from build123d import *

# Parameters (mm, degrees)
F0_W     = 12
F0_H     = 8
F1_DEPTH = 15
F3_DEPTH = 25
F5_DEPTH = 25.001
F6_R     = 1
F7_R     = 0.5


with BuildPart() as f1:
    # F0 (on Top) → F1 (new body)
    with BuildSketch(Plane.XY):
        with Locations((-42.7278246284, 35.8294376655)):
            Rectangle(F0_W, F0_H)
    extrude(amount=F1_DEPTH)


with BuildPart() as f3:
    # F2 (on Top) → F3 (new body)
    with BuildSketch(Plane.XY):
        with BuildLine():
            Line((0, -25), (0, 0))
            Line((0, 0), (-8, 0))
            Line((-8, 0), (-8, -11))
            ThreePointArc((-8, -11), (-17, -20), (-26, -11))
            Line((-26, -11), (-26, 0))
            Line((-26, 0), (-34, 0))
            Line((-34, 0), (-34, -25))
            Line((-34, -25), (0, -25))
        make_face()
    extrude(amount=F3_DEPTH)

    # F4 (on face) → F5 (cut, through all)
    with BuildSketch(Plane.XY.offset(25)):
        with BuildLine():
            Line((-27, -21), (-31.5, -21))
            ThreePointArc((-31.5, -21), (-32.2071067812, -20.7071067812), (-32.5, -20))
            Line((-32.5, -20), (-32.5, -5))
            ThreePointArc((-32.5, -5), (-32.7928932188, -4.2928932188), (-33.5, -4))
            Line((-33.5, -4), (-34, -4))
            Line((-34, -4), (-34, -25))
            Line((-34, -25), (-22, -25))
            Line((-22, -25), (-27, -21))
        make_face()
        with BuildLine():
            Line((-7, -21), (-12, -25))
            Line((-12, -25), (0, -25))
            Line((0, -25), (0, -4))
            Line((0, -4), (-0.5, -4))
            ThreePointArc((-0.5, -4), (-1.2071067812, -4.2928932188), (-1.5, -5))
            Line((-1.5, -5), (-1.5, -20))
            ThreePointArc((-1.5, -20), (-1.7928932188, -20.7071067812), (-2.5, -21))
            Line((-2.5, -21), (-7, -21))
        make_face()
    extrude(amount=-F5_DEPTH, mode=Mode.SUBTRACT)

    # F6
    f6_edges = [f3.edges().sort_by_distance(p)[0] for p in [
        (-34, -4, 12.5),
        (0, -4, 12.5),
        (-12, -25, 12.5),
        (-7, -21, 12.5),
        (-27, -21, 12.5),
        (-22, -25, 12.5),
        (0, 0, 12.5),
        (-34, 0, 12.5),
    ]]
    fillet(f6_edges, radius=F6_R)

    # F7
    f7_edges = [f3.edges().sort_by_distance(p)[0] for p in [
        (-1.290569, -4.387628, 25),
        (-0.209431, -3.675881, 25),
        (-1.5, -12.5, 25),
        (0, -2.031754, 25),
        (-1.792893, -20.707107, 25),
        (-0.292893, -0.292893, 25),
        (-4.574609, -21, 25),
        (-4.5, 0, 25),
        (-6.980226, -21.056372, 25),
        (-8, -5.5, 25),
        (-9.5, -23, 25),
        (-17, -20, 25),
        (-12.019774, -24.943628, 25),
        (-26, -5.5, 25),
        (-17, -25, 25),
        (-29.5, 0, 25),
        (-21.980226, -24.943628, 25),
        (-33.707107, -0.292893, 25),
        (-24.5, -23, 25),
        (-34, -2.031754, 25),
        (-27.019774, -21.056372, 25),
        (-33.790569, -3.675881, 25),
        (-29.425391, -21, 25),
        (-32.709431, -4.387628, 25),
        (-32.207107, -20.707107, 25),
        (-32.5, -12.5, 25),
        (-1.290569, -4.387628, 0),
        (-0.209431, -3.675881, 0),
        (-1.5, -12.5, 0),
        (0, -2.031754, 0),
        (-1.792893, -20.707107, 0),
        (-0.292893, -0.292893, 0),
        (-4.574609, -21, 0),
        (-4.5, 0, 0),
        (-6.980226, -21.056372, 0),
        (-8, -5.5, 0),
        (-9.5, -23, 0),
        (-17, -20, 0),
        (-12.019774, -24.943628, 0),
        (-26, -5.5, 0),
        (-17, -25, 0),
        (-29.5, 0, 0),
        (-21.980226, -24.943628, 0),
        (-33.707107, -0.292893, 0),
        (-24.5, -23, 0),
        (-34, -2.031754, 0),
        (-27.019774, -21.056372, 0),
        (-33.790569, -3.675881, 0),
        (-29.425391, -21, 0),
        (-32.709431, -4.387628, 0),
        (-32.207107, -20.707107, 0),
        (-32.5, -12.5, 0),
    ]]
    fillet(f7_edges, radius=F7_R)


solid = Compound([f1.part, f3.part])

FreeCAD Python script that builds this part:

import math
import FreeCAD as App
import Part
import Sketcher

V = App.Vector
Q = App.Units.Quantity


def edges_at(feature, points):
    """Names of the edges that pass closest to the given points."""
    edges = feature.Shape.Edges
    near = lambda p: min(range(len(edges)), key=lambda i: edges[i].distToShape(Part.Vertex(*p))[0])
    return sorted({f"Edge{near(p) + 1}" for p in points})


def add_polygon(sketch, points):
    """Adds a closed chain of lines whose ends are joined by coincident constraints."""
    first, n = sketch.GeometryCount, len(points)
    for a, b in zip(points, points[1:] + points[:1]):
        sketch.addGeometry(Part.LineSegment(App.Vector(*a, 0), App.Vector(*b, 0)), False)
    for i in range(n):
        sketch.addConstraint(Sketcher.Constraint("Coincident", first + i, 2, first + (i + 1) % n, 1))

doc = App.newDocument("Part")
body = doc.addObject("PartDesign::Body", "Body")

# Sketch on XY plane
sketch1 = doc.addObject("Sketcher::SketchObject", "Sketch")
body.addObject(sketch1)
sketch1.AttachmentSupport = (doc.XY_Plane, [""])
sketch1.MapMode = "FlatFace"
add_polygon(sketch1, [(-49, 40), (-49, 32), (-37, 32), (-37, 40)])  # lines 0-3
sketch1.addConstraint([
    Sketcher.Constraint("Vertical", 0),
    Sketcher.Constraint("Horizontal", 1),
    Sketcher.Constraint("Vertical", 2),
    Sketcher.Constraint("Horizontal", 3),
    Sketcher.Constraint("DistanceX", 1, 1, 1, 2, Q("12 mm")),
    Sketcher.Constraint("DistanceY", 0, 2, 0, 1, Q("8 mm")),
    Sketcher.Constraint("DistanceX", 0, 2, -1, 1, Q("48.727825 mm")),
    Sketcher.Constraint("DistanceY", -1, 1, 0, 2, Q("31.829438 mm")),
])
pad1 = doc.addObject("PartDesign::Pad", "Pad")
body.addObject(pad1)
pad1.Profile = sketch1
pad1.Length = 15
body2 = doc.addObject("PartDesign::Body", "Body001")

# Sketch on XY plane
sketch2 = doc.addObject("Sketcher::SketchObject", "Sketch001")
body2.addObject(sketch2)
sketch2.AttachmentSupport = (doc.getObject("XY_Plane001"), [""])
sketch2.MapMode = "FlatFace"
sketch2.addGeometry([
    Part.LineSegment(V(0, -25, 0), V(0, 0, 0)),  # 0
    Part.LineSegment(V(0, 0, 0), V(-8, 0, 0)),  # 1
    Part.LineSegment(V(-8, 0, 0), V(-8, -11, 0)),  # 2
    Part.ArcOfCircle(Part.Circle(V(-17, -11, 0), V(0, 0, 1), 9), math.radians(180), math.radians(360)),  # 3
    Part.LineSegment(V(-26, -11, 0), V(-26, 0, 0)),  # 4
    Part.LineSegment(V(-26, 0, 0), V(-34, 0, 0)),  # 5
    Part.LineSegment(V(-34, 0, 0), V(-34, -25, 0)),  # 6
    Part.LineSegment(V(-34, -25, 0), V(0, -25, 0)),  # 7
], False)
sketch2.addConstraint([
    Sketcher.Constraint("Coincident", 0, 2, 1, 1),
    Sketcher.Constraint("Coincident", 1, 2, 2, 1),
    Sketcher.Constraint("Tangent", 2, 2, 3, 2),
    Sketcher.Constraint("Tangent", 3, 1, 4, 1),
    Sketcher.Constraint("Coincident", 4, 2, 5, 1),
    Sketcher.Constraint("Coincident", 5, 2, 6, 1),
    Sketcher.Constraint("Coincident", 6, 2, 7, 1),
    Sketcher.Constraint("Coincident", 7, 2, 0, 1),
    Sketcher.Constraint("Vertical", 0),
    Sketcher.Constraint("Horizontal", 1),
    Sketcher.Constraint("Vertical", 2),
    Sketcher.Constraint("Vertical", 4),
    Sketcher.Constraint("Horizontal", 5),
    Sketcher.Constraint("Vertical", 6),
    Sketcher.Constraint("Horizontal", 7),
    Sketcher.Constraint("Coincident", 0, 2, -1, 1),
    Sketcher.Constraint("PointOnObject", 4, 2, -1),
    Sketcher.Constraint("Equal", 1, 5),
    Sketcher.Constraint("Radius", 3, Q("9 mm")),
    Sketcher.Constraint("DistanceX", 1, 2, 1, 1, Q("8 mm")),
    Sketcher.Constraint("DistanceY", 0, 1, 0, 2, Q("25 mm")),
    Sketcher.Constraint("DistanceY", 2, 2, 2, 1, Q("11 mm")),
])
pad2 = doc.addObject("PartDesign::Pad", "Pad001")
body2.addObject(pad2)
pad2.Profile = sketch2
pad2.Length = 25

# Sketch on XY plane
sketch3 = doc.addObject("Sketcher::SketchObject", "Sketch002")
body2.addObject(sketch3)
sketch3.AttachmentSupport = (doc.getObject("XY_Plane001"), [""])
sketch3.MapMode = "FlatFace"
sketch3.AttachmentOffset = App.Placement(V(0, 0, 25), App.Rotation())
sketch3.addGeometry([
    Part.LineSegment(V(-27, -21, 0), V(-31.5, -21, 0)),  # 0
    Part.ArcOfCircle(Part.Circle(V(-31.5, -20, 0), V(0, 0, 1), 1), math.radians(180), math.radians(270)),  # 1
    Part.LineSegment(V(-32.5, -20, 0), V(-32.5, -5, 0)),  # 2
    Part.ArcOfCircle(Part.Circle(V(-33.5, -5, 0), V(0, 0, 1), 1), math.radians(0), math.radians(90)),  # 3
    Part.LineSegment(V(-33.5, -4, 0), V(-34, -4, 0)),  # 4
    Part.LineSegment(V(-34, -4, 0), V(-34, -25, 0)),  # 5
    Part.LineSegment(V(-34, -25, 0), V(-22, -25, 0)),  # 6
    Part.LineSegment(V(-22, -25, 0), V(-27, -21, 0)),  # 7
    Part.LineSegment(V(-7, -21, 0), V(-12, -25, 0)),  # 8
    Part.LineSegment(V(-12, -25, 0), V(0, -25, 0)),  # 9
    Part.LineSegment(V(0, -25, 0), V(0, -4, 0)),  # 10
    Part.LineSegment(V(0, -4, 0), V(-0.5, -4, 0)),  # 11
    Part.ArcOfCircle(Part.Circle(V(-0.5, -5, 0), V(0, 0, 1), 1), math.radians(90), math.radians(180)),  # 12
    Part.LineSegment(V(-1.5, -5, 0), V(-1.5, -20, 0)),  # 13
    Part.ArcOfCircle(Part.Circle(V(-2.5, -20, 0), V(0, 0, 1), 1), math.radians(-90), math.radians(0)),  # 14
    Part.LineSegment(V(-2.5, -21, 0), V(-7, -21, 0)),  # 15
], False)
sketch3.addConstraint([
    Sketcher.Constraint("Tangent", 0, 2, 1, 2),
    Sketcher.Constraint("Tangent", 1, 1, 2, 1),
    Sketcher.Constraint("Tangent", 2, 2, 3, 1),
    Sketcher.Constraint("Tangent", 3, 2, 4, 1),
    Sketcher.Constraint("Coincident", 4, 2, 5, 1),
    Sketcher.Constraint("Coincident", 5, 2, 6, 1),
    Sketcher.Constraint("Coincident", 6, 2, 7, 1),
    Sketcher.Constraint("Coincident", 7, 2, 0, 1),
    Sketcher.Constraint("Coincident", 8, 2, 9, 1),
    Sketcher.Constraint("Coincident", 9, 2, 10, 1),
    Sketcher.Constraint("Coincident", 10, 2, 11, 1),
    Sketcher.Constraint("Tangent", 11, 2, 12, 1),
    Sketcher.Constraint("Tangent", 12, 2, 13, 1),
    Sketcher.Constraint("Tangent", 13, 2, 14, 2),
    Sketcher.Constraint("Tangent", 14, 1, 15, 1),
    Sketcher.Constraint("Coincident", 15, 2, 8, 1),
    Sketcher.Constraint("Horizontal", 0),
    Sketcher.Constraint("Vertical", 2),
    Sketcher.Constraint("Horizontal", 4),
    Sketcher.Constraint("Vertical", 5),
    Sketcher.Constraint("Horizontal", 6),
    Sketcher.Constraint("Horizontal", 9),
    Sketcher.Constraint("Vertical", 10),
    Sketcher.Constraint("Horizontal", 11),
    Sketcher.Constraint("Vertical", 13),
    Sketcher.Constraint("Horizontal", 15),
    Sketcher.Constraint("Equal", 1, 3),
    Sketcher.Constraint("Equal", 3, 12),
    Sketcher.Constraint("Equal", 12, 14),
    Sketcher.Constraint("PointOnObject", 9, 2, -2),
    Sketcher.Constraint("Horizontal", 3, 3, 12, 3),
    Sketcher.Constraint("Horizontal", 1, 3, 14, 3),
    Sketcher.Constraint("Horizontal", 6, 2, 8, 2),
    Sketcher.Constraint("Equal", 6, 9),
    Sketcher.Constraint("Equal", 4, 11),
    Sketcher.Constraint("Equal", 0, 15),
    Sketcher.Constraint("Radius", 1, Q("1 mm")),
    Sketcher.Constraint("DistanceX", 6, 1, 6, 2, Q("12 mm")),
    Sketcher.Constraint("DistanceY", 2, 1, 2, 2, Q("15 mm")),
    Sketcher.Constraint("DistanceY", 5, 2, 5, 1, Q("21 mm")),
    Sketcher.Constraint("DistanceX", 0, 2, 0, 1, Q("4.5 mm")),
    Sketcher.Constraint("DistanceX", 4, 2, 4, 1, Q("0.5 mm")),
    Sketcher.Constraint("DistanceY", 1, 3, -1, 1, Q("20 mm")),
    Sketcher.Constraint("DistanceX", 4, 2, -1, 1, Q("34 mm")),
])
pocket1 = doc.addObject("PartDesign::Pocket", "Pocket")
body2.addObject(pocket1)
pocket1.Profile = sketch3
pocket1.Type = "ThroughAll"
doc.recompute()

fillet = doc.addObject("PartDesign::Fillet", "Fillet")
body2.addObject(fillet)
fillet.Base = (pocket1, edges_at(pocket1, [
    (-34, -4, 12.5),
    (0, -4, 12.5),
    (-12, -25, 12.5),
    (-7, -21, 12.5),
    (-27, -21, 12.5),
    (-22, -25, 12.5),
    (0, 0, 12.5),
    (-34, 0, 12.5),
]))
fillet.Radius = 1
doc.recompute()

fillet2 = doc.addObject("PartDesign::Fillet", "Fillet001")
body2.addObject(fillet2)
fillet2.Base = (fillet, edges_at(fillet, [
    (-1.291, -4.388, 25),
    (-0.209, -3.676, 25),
    (-1.5, -12.5, 25),
    (0, -2.032, 25),
    (-1.793, -20.707, 25),
    (-0.293, -0.293, 25),
    (-4.575, -21, 25),
    (-4.5, 0, 25),
    (-6.98, -21.056, 25),
    (-8, -5.5, 25),
    (-9.5, -23, 25),
    (-17, -20, 25),
    (-12.02, -24.944, 25),
    (-26, -5.5, 25),
    (-17, -25, 25),
    (-29.5, 0, 25),
    (-21.98, -24.944, 25),
    (-33.707, -0.293, 25),
    (-24.5, -23, 25),
    (-34, -2.032, 25),
    (-27.02, -21.056, 25),
    (-33.791, -3.676, 25),
    (-29.425, -21, 25),
    (-32.709, -4.388, 25),
    (-32.207, -20.707, 25),
    (-32.5, -12.5, 25),
    (-1.291, -4.388, 0),
    (-0.209, -3.676, 0),
    (-1.5, -12.5, 0),
    (0, -2.032, 0),
    (-1.793, -20.707, 0),
    (-0.293, -0.293, 0),
    (-4.575, -21, 0),
    (-4.5, 0, 0),
    (-6.98, -21.056, 0),
    (-8, -5.5, 0),
    (-9.5, -23, 0),
    (-17, -20, 0),
    (-12.02, -24.944, 0),
    (-26, -5.5, 0),
    (-17, -25, 0),
    (-29.5, 0, 0),
    (-21.98, -24.944, 0),
    (-33.707, -0.293, 0),
    (-24.5, -23, 0),
    (-34, -2.032, 0),
    (-27.02, -21.056, 0),
    (-33.791, -3.676, 0),
    (-29.425, -21, 0),
    (-32.709, -4.388, 0),
    (-32.207, -20.707, 0),
    (-32.5, -12.5, 0),
]))
fillet2.Radius = 0.5

doc.recompute()
